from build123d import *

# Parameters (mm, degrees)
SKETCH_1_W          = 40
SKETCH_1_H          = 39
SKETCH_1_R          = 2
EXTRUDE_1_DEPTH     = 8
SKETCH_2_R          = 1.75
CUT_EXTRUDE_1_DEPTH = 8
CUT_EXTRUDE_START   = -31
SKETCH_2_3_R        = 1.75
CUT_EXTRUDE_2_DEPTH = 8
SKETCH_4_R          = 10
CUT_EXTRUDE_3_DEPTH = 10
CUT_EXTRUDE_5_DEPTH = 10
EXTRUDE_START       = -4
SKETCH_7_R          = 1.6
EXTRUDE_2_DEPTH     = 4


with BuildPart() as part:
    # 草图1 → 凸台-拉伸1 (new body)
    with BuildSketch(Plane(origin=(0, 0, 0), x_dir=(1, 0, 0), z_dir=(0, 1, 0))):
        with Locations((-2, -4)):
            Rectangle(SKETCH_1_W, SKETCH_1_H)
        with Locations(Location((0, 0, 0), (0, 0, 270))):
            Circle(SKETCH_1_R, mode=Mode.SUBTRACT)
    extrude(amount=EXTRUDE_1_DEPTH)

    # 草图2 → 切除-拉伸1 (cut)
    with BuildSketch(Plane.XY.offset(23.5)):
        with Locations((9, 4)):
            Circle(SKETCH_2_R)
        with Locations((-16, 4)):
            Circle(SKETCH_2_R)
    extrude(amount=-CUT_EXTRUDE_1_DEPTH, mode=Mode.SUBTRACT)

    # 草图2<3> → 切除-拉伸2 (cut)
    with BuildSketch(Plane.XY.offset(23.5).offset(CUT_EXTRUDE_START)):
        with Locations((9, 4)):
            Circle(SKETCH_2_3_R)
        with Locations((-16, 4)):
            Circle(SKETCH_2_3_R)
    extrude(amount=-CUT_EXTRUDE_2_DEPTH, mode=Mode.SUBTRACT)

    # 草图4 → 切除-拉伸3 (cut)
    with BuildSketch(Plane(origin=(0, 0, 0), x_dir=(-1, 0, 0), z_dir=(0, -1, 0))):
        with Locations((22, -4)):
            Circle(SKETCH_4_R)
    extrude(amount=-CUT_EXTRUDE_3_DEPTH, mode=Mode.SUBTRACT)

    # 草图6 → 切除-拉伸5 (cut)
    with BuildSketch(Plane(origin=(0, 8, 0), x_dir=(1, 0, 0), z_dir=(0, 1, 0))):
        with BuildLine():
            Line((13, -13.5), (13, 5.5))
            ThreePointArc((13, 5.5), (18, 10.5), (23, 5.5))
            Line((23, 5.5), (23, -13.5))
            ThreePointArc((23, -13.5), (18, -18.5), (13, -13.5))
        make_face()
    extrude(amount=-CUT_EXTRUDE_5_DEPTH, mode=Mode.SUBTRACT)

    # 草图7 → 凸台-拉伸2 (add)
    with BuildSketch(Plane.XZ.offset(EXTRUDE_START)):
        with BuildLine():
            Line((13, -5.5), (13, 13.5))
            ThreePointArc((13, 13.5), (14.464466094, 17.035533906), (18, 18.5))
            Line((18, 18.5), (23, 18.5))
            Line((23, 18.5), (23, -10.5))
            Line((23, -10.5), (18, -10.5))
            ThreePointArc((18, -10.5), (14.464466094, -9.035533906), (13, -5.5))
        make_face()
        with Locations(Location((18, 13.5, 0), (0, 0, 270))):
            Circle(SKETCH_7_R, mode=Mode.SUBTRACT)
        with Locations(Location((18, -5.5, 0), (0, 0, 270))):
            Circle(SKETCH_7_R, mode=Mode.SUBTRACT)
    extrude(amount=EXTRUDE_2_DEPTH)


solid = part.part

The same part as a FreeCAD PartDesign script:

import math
import FreeCAD as App
import Part
import Sketcher
Q = App.Units.Quantity

doc = App.newDocument("Part")
body = doc.addObject("PartDesign::Body", "Body")

# Sketch on XZ plane
sketch1 = body.newObject("Sketcher::SketchObject", "Sketch")
sketch1.AttachmentSupport = (doc.getObject("XZ_Plane"), [""])
sketch1.MapMode = "FlatFace"
sketch1.addGeometry([
    Part.LineSegment(App.Vector(-22, -15.5, 0), App.Vector(-22, 23.5, 0)),  # 0
    Part.LineSegment(App.Vector(-22, 23.5, 0), App.Vector(18, 23.5, 0)),  # 1
    Part.LineSegment(App.Vector(18, 23.5, 0), App.Vector(18, -15.5, 0)),  # 2
    Part.LineSegment(App.Vector(18, -15.5, 0), App.Vector(-22, -15.5, 0)),  # 3
    Part.Circle(App.Vector(0, 0, 0), App.Vector(0, 0, 1), 2),  # 4
], False)
sketch1.addConstraint([
    Sketcher.Constraint("Coincident", 0, 2, 1, 1),
    Sketcher.Constraint("Coincident", 1, 2, 2, 1),
    Sketcher.Constraint("Coincident", 2, 2, 3, 1),
    Sketcher.Constraint("Coincident", 3, 2, 0, 1),
    Sketcher.Constraint("Vertical", 0),
    Sketcher.Constraint("Horizontal", 1),
    Sketcher.Constraint("Vertical", 2),
    Sketcher.Constraint("Horizontal", 3),
    Sketcher.Constraint("Coincident", 4, 3, -1, 1),
    Sketcher.Constraint("Diameter", 4, Q("4 mm")),
    Sketcher.Constraint("DistanceX", 1, 1, 1, 2, Q("40 mm")),
    Sketcher.Constraint("DistanceY", 0, 1, 0, 2, Q("39 mm")),
    Sketcher.Constraint("DistanceX", 0, 2, -1, 1, Q("22 mm")),
    Sketcher.Constraint("DistanceY", -1, 1, 0, 2, Q("23.5 mm")),
])
pad1 = body.newObject("PartDesign::Pad", "Pad")
pad1.Profile = sketch1
pad1.Length = 8
pad1.Reversed = True

# Sketch on XY plane
sketch2 = body.newObject("Sketcher::SketchObject", "Sketch001")
sketch2.AttachmentSupport = (doc.getObject("XY_Plane"), [""])
sketch2.MapMode = "FlatFace"
sketch2.AttachmentOffset = App.Placement(App.Vector(0, 0, 23.5), App.Rotation())
sketch2.addGeometry([
    Part.Circle(App.Vector(9, 4, 0), App.Vector(0, 0, 1), 1.8),
    Part.Circle(App.Vector(-16, 4, 0), App.Vector(0, 0, 1), 1.8),
], False)
sketch2.addConstraint([
    Sketcher.Constraint("Equal", 0, 1),
    Sketcher.Constraint("Horizontal", 0, 3, 1, 3),
    Sketcher.Constraint("Diameter", 0, Q("3.5 mm")),
    Sketcher.Constraint("DistanceX", -1, 1, 0, 3, Q("9 mm")),
    Sketcher.Constraint("DistanceY", -1, 1, 0, 3, Q("4 mm")),
    Sketcher.Constraint("DistanceX", 1, 3, -1, 1, Q("16 mm")),
])
pocket1 = body.newObject("PartDesign::Pocket", "Pocket")
pocket1.Profile = sketch2
pocket1.Length = 8

# Sketch on XY plane
sketch3 = body.newObject("Sketcher::SketchObject", "Sketch002")
sketch3.AttachmentSupport = (doc.getObject("XY_Plane"), [""])
sketch3.MapMode = "FlatFace"
sketch3.AttachmentOffset = App.Placement(App.Vector(0, 0, -7.5), App.Rotation())
sketch3.addGeometry([
    Part.Circle(App.Vector(9, 4, 0), App.Vector(0, 0, 1), 1.8),
    Part.Circle(App.Vector(-16, 4, 0), App.Vector(0, 0, 1), 1.8),
], False)
sketch3.addConstraint([
    Sketcher.Constraint("Equal", 0, 1),
    Sketcher.Constraint("Horizontal", 0, 3, 1, 3),
    Sketcher.Constraint("Diameter", 0, Q("3.5 mm")),
    Sketcher.Constraint("DistanceX", -1, 1, 0, 3, Q("9 mm")),
    Sketcher.Constraint("DistanceY", -1, 1, 0, 3, Q("4 mm")),
    Sketcher.Constraint("DistanceX", 1, 3, -1, 1, Q("16 mm")),
])
pocket2 = body.newObject("PartDesign::Pocket", "Pocket001")
pocket2.Profile = sketch3
pocket2.Length = 8

# Sketch on XZ plane
sketch4 = body.newObject("Sketcher::SketchObject", "Sketch003")
sketch4.AttachmentSupport = (doc.getObject("XZ_Plane"), [""])
sketch4.MapMode = "FlatFace"
sketch4.addGeometry(Part.Circle(App.Vector(-22, 4, 0), App.Vector(0, 0, 1), 10), False)
sketch4.addConstraint([
    Sketcher.Constraint("Diameter", 0, Q("20 mm")),
    Sketcher.Constraint("DistanceX", 0, 3, -1, 1, Q("22 mm")),
    Sketcher.Constraint("DistanceY", -1, 1, 0, 3, Q("4 mm")),
])
pocket3 = body.newObject("PartDesign::Pocket", "Pocket002")
pocket3.Profile = sketch4
pocket3.Length = 10

# Sketch on XZ plane
sketch5 = body.newObject("Sketcher::SketchObject", "Sketch004")
sketch5.AttachmentSupport = (doc.getObject("XZ_Plane"), [""])
sketch5.MapMode = "FlatFace"
sketch5.AttachmentOffset = App.Placement(App.Vector(0, 0, -8), App.Rotation())
sketch5.addGeometry([
    Part.LineSegment(App.Vector(13, -6, 0), App.Vector(13, 14, 0)),
    Part.ArcOfCircle(Part.Circle(App.Vector(18, 14, 0), App.Vector(0, 0, 1), 5), math.radians(0), math.radians(180)),
    Part.LineSegment(App.Vector(23, 14, 0), App.Vector(23, -6, 0)),
    Part.ArcOfCircle(Part.Circle(App.Vector(18, -6, 0), App.Vector(0, 0, 1), 5), math.radians(180), math.radians(360)),
], False)
sketch5.addConstraint([
    Sketcher.Constraint("Tangent", 0, 2, 1, 2),
    Sketcher.Constraint("Tangent", 1, 1, 2, 1),
    Sketcher.Constraint("Tangent", 2, 2, 3, 2),
    Sketcher.Constraint("Tangent", 3, 1, 0, 1),
    Sketcher.Constraint("Vertical", 0),
    Sketcher.Constraint("Vertical", 2),
    Sketcher.Constraint("Radius", 1, Q("5 mm")),
    Sketcher.Constraint("DistanceY", 0, 1, 0, 2, Q("19 mm")),
    Sketcher.Constraint("DistanceX", -1, 1, 1, 3, Q("18 mm")),
    Sketcher.Constraint("DistanceY", -1, 1, 1, 3, Q("13.5 mm")),
])
pocket4 = body.newObject("PartDesign::Pocket", "Pocket003")
pocket4.Profile = sketch5
pocket4.Length = 10
pocket4.Reversed = True

# Sketch on XZ plane
sketch6 = body.newObject("Sketcher::SketchObject", "Sketch005")
sketch6.AttachmentSupport = (doc.getObject("XZ_Plane"), [""])
sketch6.MapMode = "FlatFace"
sketch6.AttachmentOffset = App.Placement(App.Vector(0, 0, -4), App.Rotation())
sketch6.addGeometry([
    Part.LineSegment(App.Vector(13, 13.5, 0), App.Vector(13, -5.5, 0)),  # 0
    Part.ArcOfCircle(Part.Circle(App.Vector(18, -5.5, 0), App.Vector(0, 0, 1), 5), math.radians(180), math.radians(270)),  # 1
    Part.LineSegment(App.Vector(18, -10.5, 0), App.Vector(23, -10.5, 0)),  # 2
    Part.LineSegment(App.Vector(23, -10.5, 0), App.Vector(23, 18.5, 0)),  # 3
    Part.LineSegment(App.Vector(23, 18.5, 0), App.Vector(18, 18.5, 0)),  # 4
    Part.ArcOfCircle(Part.Circle(App.Vector(18, 13.5, 0), App.Vector(0, 0, 1), 5), math.radians(90), math.radians(180)),  # 5
    Part.Circle(App.Vector(18, -5.5, 0), App.Vector(0, 0, 1), 1.6),  # 6
    Part.Circle(App.Vector(18, 13.5, 0), App.Vector(0, 0, 1), 1.6),  # 7
], False)
sketch6.addConstraint([
    Sketcher.Constraint("Tangent", 0, 2, 1, 1),
    Sketcher.Constraint("Tangent", 1, 2, 2, 1),
    Sketcher.Constraint("Coincident", 2, 2, 3, 1),
    Sketcher.Constraint("Coincident", 3, 2, 4, 1),
    Sketcher.Constraint("Tangent", 4, 2, 5, 1),
    Sketcher.Constraint("Tangent", 5, 2, 0, 1),
    Sketcher.Constraint("Vertical", 0),
    Sketcher.Constraint("Horizontal", 2),
    Sketcher.Constraint("Vertical", 3),
    Sketcher.Constraint("Horizontal", 4),
    Sketcher.Constraint("Coincident", 6, 3, 1, 3),
    Sketcher.Constraint("Coincident", 7, 3, 5, 3),
    Sketcher.Constraint("Equal", 1, 5),
    Sketcher.Constraint("Equal", 6, 7),
    Sketcher.Constraint("Radius", 1, Q("5 mm")),
    Sketcher.Constraint("Diameter", 6, Q("3.2 mm")),
    Sketcher.Constraint("DistanceX", 2, 1, 2, 2, Q("5 mm")),
    Sketcher.Constraint("DistanceY", 0, 2, 0, 1, Q("19 mm")),
    Sketcher.Constraint("DistanceX", -1, 1, 1, 3, Q("18 mm")),
    Sketcher.Constraint("DistanceY", 1, 3, -1, 1, Q("5.5 mm")),
])
pad2 = body.newObject("PartDesign::Pad", "Pad001")
pad2.Profile = sketch6
pad2.Length = 4

doc.recompute()
